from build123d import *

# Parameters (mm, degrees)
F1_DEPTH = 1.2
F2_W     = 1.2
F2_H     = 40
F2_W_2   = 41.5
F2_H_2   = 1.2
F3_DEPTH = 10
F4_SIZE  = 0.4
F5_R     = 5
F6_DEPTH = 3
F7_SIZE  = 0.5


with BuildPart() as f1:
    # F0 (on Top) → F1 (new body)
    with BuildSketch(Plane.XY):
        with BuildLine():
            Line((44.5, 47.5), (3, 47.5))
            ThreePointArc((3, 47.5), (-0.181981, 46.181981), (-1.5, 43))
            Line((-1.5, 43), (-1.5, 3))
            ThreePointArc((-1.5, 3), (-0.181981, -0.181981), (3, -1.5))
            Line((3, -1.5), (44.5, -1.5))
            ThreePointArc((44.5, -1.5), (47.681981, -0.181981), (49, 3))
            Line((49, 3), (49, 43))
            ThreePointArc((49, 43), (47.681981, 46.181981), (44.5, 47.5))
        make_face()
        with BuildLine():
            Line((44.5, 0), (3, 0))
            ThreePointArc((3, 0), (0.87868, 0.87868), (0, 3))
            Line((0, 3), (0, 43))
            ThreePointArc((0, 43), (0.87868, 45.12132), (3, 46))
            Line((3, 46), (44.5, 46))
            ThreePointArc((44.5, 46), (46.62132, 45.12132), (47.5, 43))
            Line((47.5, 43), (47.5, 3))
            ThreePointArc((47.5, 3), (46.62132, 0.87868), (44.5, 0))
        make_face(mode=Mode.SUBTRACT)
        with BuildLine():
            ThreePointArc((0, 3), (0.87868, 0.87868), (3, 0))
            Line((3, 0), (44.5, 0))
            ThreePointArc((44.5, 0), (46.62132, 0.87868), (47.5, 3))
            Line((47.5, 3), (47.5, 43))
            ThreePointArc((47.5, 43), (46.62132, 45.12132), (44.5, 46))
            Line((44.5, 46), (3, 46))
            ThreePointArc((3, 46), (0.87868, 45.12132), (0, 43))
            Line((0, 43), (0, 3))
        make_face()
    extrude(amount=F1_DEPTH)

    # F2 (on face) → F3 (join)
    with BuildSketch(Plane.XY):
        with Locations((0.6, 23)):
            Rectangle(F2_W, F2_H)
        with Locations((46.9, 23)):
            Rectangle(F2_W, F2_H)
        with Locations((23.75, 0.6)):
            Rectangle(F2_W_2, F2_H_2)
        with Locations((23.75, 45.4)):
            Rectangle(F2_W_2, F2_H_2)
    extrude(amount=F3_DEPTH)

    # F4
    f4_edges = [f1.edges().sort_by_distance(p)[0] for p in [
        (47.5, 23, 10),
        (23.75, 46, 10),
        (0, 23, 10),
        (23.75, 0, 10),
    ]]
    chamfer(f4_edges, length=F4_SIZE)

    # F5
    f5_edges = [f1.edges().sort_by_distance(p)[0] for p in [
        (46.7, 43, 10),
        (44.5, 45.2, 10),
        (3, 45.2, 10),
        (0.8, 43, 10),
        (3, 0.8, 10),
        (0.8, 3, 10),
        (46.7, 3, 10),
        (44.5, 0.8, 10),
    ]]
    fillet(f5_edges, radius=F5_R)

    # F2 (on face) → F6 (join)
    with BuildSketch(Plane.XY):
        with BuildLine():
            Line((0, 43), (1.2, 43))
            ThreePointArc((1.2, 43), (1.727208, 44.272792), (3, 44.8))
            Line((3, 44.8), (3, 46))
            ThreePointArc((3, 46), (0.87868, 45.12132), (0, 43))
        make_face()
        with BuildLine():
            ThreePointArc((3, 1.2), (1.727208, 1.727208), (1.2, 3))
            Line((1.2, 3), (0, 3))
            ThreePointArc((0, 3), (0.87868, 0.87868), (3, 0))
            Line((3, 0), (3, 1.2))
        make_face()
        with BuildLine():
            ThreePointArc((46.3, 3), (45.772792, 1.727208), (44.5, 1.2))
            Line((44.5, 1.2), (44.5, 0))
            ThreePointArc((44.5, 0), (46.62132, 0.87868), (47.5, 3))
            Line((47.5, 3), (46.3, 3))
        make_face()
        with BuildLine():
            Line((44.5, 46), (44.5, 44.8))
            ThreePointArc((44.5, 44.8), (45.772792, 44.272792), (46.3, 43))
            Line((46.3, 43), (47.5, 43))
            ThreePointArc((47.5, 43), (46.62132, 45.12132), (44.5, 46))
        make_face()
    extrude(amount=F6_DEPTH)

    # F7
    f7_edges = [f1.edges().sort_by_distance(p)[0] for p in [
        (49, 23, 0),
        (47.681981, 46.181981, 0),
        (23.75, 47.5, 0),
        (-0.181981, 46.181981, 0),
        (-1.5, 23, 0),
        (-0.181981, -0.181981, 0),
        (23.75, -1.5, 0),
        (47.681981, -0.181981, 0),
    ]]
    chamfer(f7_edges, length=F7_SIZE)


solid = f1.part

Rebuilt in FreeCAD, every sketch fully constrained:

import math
import FreeCAD as App
import Part
import Sketcher


def edges_at(feature, points):
    """Names of the edges that pass closest to the given points."""
    edges = feature.Shape.Edges
    near = lambda p: min(range(len(edges)), key=lambda i: edges[i].distToShape(Part.Vertex(*p))[0])
    return sorted({f"Edge{near(p) + 1}" for p in points})

doc = App.newDocument("Part")
body = doc.addObject("PartDesign::Body", "Body")

# Sketch on XY plane
sketch1 = body.newObject("Sketcher::SketchObject", "Sketch")
sketch1.AttachmentSupport = (doc.getObject("XY_Plane"), [""])
sketch1.MapMode = "FlatFace"
sketch1.addGeometry([
    Part.LineSegment(App.Vector(44.5, 47.5, 0), App.Vector(3, 47.5, 0)),  # 0
    Part.ArcOfCircle(Part.Circle(App.Vector(3, 43, 0), App.Vector(0, 0, 1), 4.5), math.radians(90), math.radians(180)),  # 1
    Part.LineSegment(App.Vector(-1.5, 43, 0), App.Vector(-1.5, 3, 0)),  # 2
    Part.ArcOfCircle(Part.Circle(App.Vector(3, 3, 0), App.Vector(0, 0, 1), 4.5), math.radians(180), math.radians(270)),  # 3
    Part.LineSegment(App.Vector(3, -1.5, 0), App.Vector(44.5, -1.5, 0)),  # 4
    Part.ArcOfCircle(Part.Circle(App.Vector(44.5, 3, 0), App.Vector(0, 0, 1), 4.5), math.radians(-90), math.radians(0)),  # 5
    Part.LineSegment(App.Vector(49, 3, 0), App.Vector(49, 43, 0)),  # 6
    Part.ArcOfCircle(Part.Circle(App.Vector(44.5, 43, 0), App.Vector(0, 0, 1), 4.5), math.radians(0), math.radians(90)),  # 7
], False)
sketch1.addConstraint([
    Sketcher.Constraint("Tangent", 0, 2, 1, 1),
    Sketcher.Constraint("Tangent", 1, 2, 2, 1),
    Sketcher.Constraint("Tangent", 2, 2, 3, 1),
    Sketcher.Constraint("Tangent", 3, 2, 4, 1),
    Sketcher.Constraint("Tangent", 4, 2, 5, 1),
    Sketcher.Constraint("Tangent", 5, 2, 6, 1),
    Sketcher.Constraint("Tangent", 6, 2, 7, 1),
    Sketcher.Constraint("Tangent", 7, 2, 0, 1),
    Sketcher.Constraint("Horizontal", 0),
    Sketcher.Constraint("Vertical", 2),
    Sketcher.Constraint("Horizontal", 4),
    Sketcher.Constraint("Vertical", 6),
    Sketcher.Constraint("Equal", 1, 3),
    Sketcher.Constraint("Equal", 3, 5),
    Sketcher.Constraint("Equal", 5, 7),
    Sketcher.Constraint("Radius", 1, 4.499998),
    Sketcher.Constraint("DistanceY", 2, 2, 2, 1, 40.0),
    Sketcher.Constraint("DistanceX", 0, 2, 0, 1, 41.5),
    Sketcher.Constraint("DistanceX", -1, 1, 1, 3, 2.999998),
    Sketcher.Constraint("DistanceY", -1, 1, 1, 3, 43.000002),
])
pad1 = body.newObject("PartDesign::Pad", "Pad")
pad1.Profile = sketch1
pad1.Length = 1.2

# Sketch on XY plane
sketch2 = body.newObject("Sketcher::SketchObject", "Sketch001")
sketch2.AttachmentSupport = (doc.getObject("XY_Plane"), [""])
sketch2.MapMode = "FlatFace"
sketch2.addGeometry([
    Part.LineSegment(App.Vector(0, 43, 0), App.Vector(0, 3, 0)),  # 0
    Part.LineSegment(App.Vector(0, 3, 0), App.Vector(1.2, 3, 0)),  # 1
    Part.LineSegment(App.Vector(1.2, 3, 0), App.Vector(1.2, 43, 0)),  # 2
    Part.LineSegment(App.Vector(1.2, 43, 0), App.Vector(0, 43, 0)),  # 3
    Part.LineSegment(App.Vector(46.3, 43, 0), App.Vector(46.3, 3, 0)),  # 4
    Part.LineSegment(App.Vector(46.3, 3, 0), App.Vector(47.5, 3, 0)),  # 5
    Part.LineSegment(App.Vector(47.5, 3, 0), App.Vector(47.5, 43, 0)),  # 6
    Part.LineSegment(App.Vector(47.5, 43, 0), App.Vector(46.3, 43, 0)),  # 7
    Part.LineSegment(App.Vector(3, 1.2, 0), App.Vector(3, 0, 0)),  # 8
    Part.LineSegment(App.Vector(3, 0, 0), App.Vector(44.5, 0, 0)),  # 9
    Part.LineSegment(App.Vector(44.5, 0, 0), App.Vector(44.5, 1.2, 0)),  # 10
    Part.LineSegment(App.Vector(44.5, 1.2, 0), App.Vector(3, 1.2, 0)),  # 11
    Part.LineSegment(App.Vector(3, 46, 0), App.Vector(3, 44.8, 0)),  # 12
    Part.LineSegment(App.Vector(3, 44.8, 0), App.Vector(44.5, 44.8, 0)),  # 13
    Part.LineSegment(App.Vector(44.5, 44.8, 0), App.Vector(44.5, 46, 0)),  # 14
    Part.LineSegment(App.Vector(44.5, 46, 0), App.Vector(3, 46, 0)),  # 15
], False)
sketch2.addConstraint([
    Sketcher.Constraint("Coincident", 0, 2, 1, 1),
    Sketcher.Constraint("Coincident", 1, 2, 2, 1),
    Sketcher.Constraint("Coincident", 2, 2, 3, 1),
    Sketcher.Constraint("Coincident", 3, 2, 0, 1),
    Sketcher.Constraint("Coincident", 4, 2, 5, 1),
    Sketcher.Constraint("Coincident", 5, 2, 6, 1),
    Sketcher.Constraint("Coincident", 6, 2, 7, 1),
    Sketcher.Constraint("Coincident", 7, 2, 4, 1),
    Sketcher.Constraint("Coincident", 8, 2, 9, 1),
    Sketcher.Constraint("Coincident", 9, 2, 10, 1),
    Sketcher.Constraint("Coincident", 10, 2, 11, 1),
    Sketcher.Constraint("Coincident", 11, 2, 8, 1),
    Sketcher.Constraint("Coincident", 12, 2, 13, 1),
    Sketcher.Constraint("Coincident", 13, 2, 14, 1),
    Sketcher.Constraint("Coincident", 14, 2, 15, 1),
    Sketcher.Constraint("Coincident", 15, 2, 12, 1),
    Sketcher.Constraint("Vertical", 0),
    Sketcher.Constraint("Horizontal", 1),
    Sketcher.Constraint("Vertical", 2),
    Sketcher.Constraint("Horizontal", 3),
    Sketcher.Constraint("Vertical", 4),
    Sketcher.Constraint("Horizontal", 5),
    Sketcher.Constraint("Vertical", 6),
    Sketcher.Constraint("Horizontal", 7),
    Sketcher.Constraint("Vertical", 8),
    Sketcher.Constraint("Horizontal", 9),
    Sketcher.Constraint("Vertical", 10),
    Sketcher.Constraint("Horizontal", 11),
    Sketcher.Constraint("Vertical", 12),
    Sketcher.Constraint("Horizontal", 13),
    Sketcher.Constraint("Vertical", 14),
    Sketcher.Constraint("Horizontal", 15),
    Sketcher.Constraint("PointOnObject", 0, 2, -2),
    Sketcher.Constraint("PointOnObject", 8, 2, -1),
    Sketcher.Constraint("Horizontal", 1, 2, 4, 2),
    Sketcher.Constraint("Horizontal", 3, 2, 6, 2),
    Sketcher.Constraint("Vertical", 11, 2, 12, 2),
    Sketcher.Constraint("Vertical", 10, 2, 13, 2),
    Sketcher.Constraint("Equal", 3, 5),
    Sketcher.Constraint("Equal", 7, 8),
    Sketcher.Constraint("Equal", 10, 12),
    Sketcher.Constraint("DistanceY", 0, 2, 0, 1, 40.0),
    Sketcher.Constraint("DistanceX", 1, 1, 1, 2, 1.2),
    Sketcher.Constraint("DistanceX", 9, 1, 9, 2, 41.5),
    Sketcher.Constraint("DistanceY", -1, 1, 0, 2, 3.0),
    Sketcher.Constraint("DistanceX", -1, 1, 8, 2, 3.0),
    Sketcher.Constraint("DistanceY", -1, 1, 14, 2, 46.0),
    Sketcher.Constraint("DistanceX", 9, 2, 5, 2, 3.0),
])
pad2 = body.newObject("PartDesign::Pad", "Pad001")
pad2.Profile = sketch2
pad2.Length = 10
doc.recompute()

chamfer = body.newObject("PartDesign::Chamfer", "Chamfer")
chamfer.Base = (pad2, edges_at(pad2, [
    (47.5, 23, 10),
    (23.75, 46, 10),
    (0, 23, 10),
    (23.75, 0, 10),
]))
chamfer.Size = 0.4
doc.recompute()

fillet = body.newObject("PartDesign::Fillet", "Fillet")
fillet.Base = (chamfer, edges_at(chamfer, [
    (46.7, 43, 10),
    (44.5, 45.2, 10),
    (3, 45.2, 10),
    (0.8, 43, 10),
    (3, 0.8, 10),
    (0.8, 3, 10),
    (46.7, 3, 10),
    (44.5, 0.8, 10),
]))
fillet.Radius = 5

# Sketch on XY plane
sketch3 = body.newObject("Sketcher::SketchObject", "Sketch002")
sketch3.AttachmentSupport = (doc.getObject("XY_Plane"), [""])
sketch3.MapMode = "FlatFace"
sketch3.addGeometry([
    Part.LineSegment(App.Vector(0, 43, 0), App.Vector(1.2, 43, 0)),  # 0
    Part.ArcOfCircle(Part.Circle(App.Vector(3, 43, 0), App.Vector(0, 0, 1), 1.8), math.radians(90), math.radians(180)),  # 1
    Part.LineSegment(App.Vector(3, 44.8, 0), App.Vector(3, 46, 0)),  # 2
    Part.ArcOfCircle(Part.Circle(App.Vector(3, 43, 0), App.Vector(0, 0, 1), 3), math.radians(90), math.radians(180)),  # 3
    Part.ArcOfCircle(Part.Circle(App.Vector(3, 3, 0), App.Vector(0, 0, 1), 1.8), math.radians(-180), math.radians(-90)),  # 4
    Part.LineSegment(App.Vector(1.2, 3, 0), App.Vector(0, 3, 0)),  # 5
    Part.ArcOfCircle(Part.Circle(App.Vector(3, 3, 0), App.Vector(0, 0, 1), 3), math.radians(-180), math.radians(-90)),  # 6
    Part.LineSegment(App.Vector(3, 0, 0), App.Vector(3, 1.2, 0)),  # 7
    Part.ArcOfCircle(Part.Circle(App.Vector(44.5, 3, 0), App.Vector(0, 0, 1), 1.8), math.radians(-90), math.radians(0)),  # 8
    Part.LineSegment(App.Vector(44.5, 1.2, 0), App.Vector(44.5, 0, 0)),  # 9
    Part.ArcOfCircle(Part.Circle(App.Vector(44.5, 3, 0), App.Vector(0, 0, 1), 3), math.radians(-90), math.radians(0)),  # 10
    Part.LineSegment(App.Vector(47.5, 3, 0), App.Vector(46.3, 3, 0)),  # 11
    Part.LineSegment(App.Vector(44.5, 46, 0), App.Vector(44.5, 44.8, 0)),  # 12
    Part.ArcOfCircle(Part.Circle(App.Vector(44.5, 43, 0), App.Vector(0, 0, 1), 1.8), math.radians(0), math.radians(90)),  # 13
    Part.LineSegment(App.Vector(46.3, 43, 0), App.Vector(47.5, 43, 0)),  # 14
    Part.ArcOfCircle(Part.Circle(App.Vector(44.5, 43, 0), App.Vector(0, 0, 1), 3), math.radians(0), math.radians(90)),  # 15
], False)
sketch3.addConstraint([
    Sketcher.Constraint("Coincident", 0, 2, 1, 2),
    Sketcher.Constraint("Coincident", 1, 1, 2, 1),
    Sketcher.Constraint("Coincident", 2, 2, 3, 1),
    Sketcher.Constraint("Coincident", 3, 2, 0, 1),
    Sketcher.Constraint("Coincident", 4, 1, 5, 1),
    Sketcher.Constraint("Coincident", 5, 2, 6, 1),
    Sketcher.Constraint("Coincident", 6, 2, 7, 1),
    Sketcher.Constraint("Coincident", 7, 2, 4, 2),
    Sketcher.Constraint("Coincident", 8, 1, 9, 1),
    Sketcher.Constraint("Coincident", 9, 2, 10, 1),
    Sketcher.Constraint("Coincident", 10, 2, 11, 1),
    Sketcher.Constraint("Coincident", 11, 2, 8, 2),
    Sketcher.Constraint("Coincident", 12, 2, 13, 2),
    Sketcher.Constraint("Coincident", 13, 1, 14, 1),
    Sketcher.Constraint("Coincident", 14, 2, 15, 1),
    Sketcher.Constraint("Coincident", 15, 2, 12, 1),
    Sketcher.Constraint("Horizontal", 0),
    Sketcher.Constraint("Vertical", 2),
    Sketcher.Constraint("Horizontal", 5),
    Sketcher.Constraint("Vertical", 7),
    Sketcher.Constraint("Vertical", 9),
    Sketcher.Constraint("Horizontal", 11),
    Sketcher.Constraint("Vertical", 12),
    Sketcher.Constraint("Horizontal", 14),
    Sketcher.Constraint("Coincident", 3, 3, 1, 3),
    Sketcher.Constraint("Coincident", 6, 3, 4, 3),
    Sketcher.Constraint("Coincident", 10, 3, 8, 3),
    Sketcher.Constraint("Coincident", 15, 3, 13, 3),
    Sketcher.Constraint("Equal", 1, 4),
    Sketcher.Constraint("Equal", 3, 6),
    Sketcher.Constraint("Equal", 4, 8),
    Sketcher.Constraint("Equal", 6, 10),
    Sketcher.Constraint("Equal", 8, 13),
    Sketcher.Constraint("Equal", 10, 15),
    Sketcher.Constraint("PointOnObject", 3, 2, -2),
    Sketcher.Constraint("PointOnObject", 5, 2, -2),
    Sketcher.Constraint("PointOnObject", 6, 2, -1),
    Sketcher.Constraint("PointOnObject", 9, 2, -1),
    Sketcher.Constraint("Horizontal", 3, 3, 13, 3),
    Sketcher.Constraint("Horizontal", 15, 3, 0, 2),
    Sketcher.Constraint("Horizontal", 10, 3, 4, 1),
    Sketcher.Constraint("Horizontal", 5, 2, 10, 2),
    Sketcher.Constraint("Horizontal", 3, 2, 13, 1),
    Sketcher.Constraint("Vertical", 10, 3, 13, 3),
    Sketcher.Constraint("Vertical", 6, 3, 1, 1),
    Sketcher.Constraint("Vertical", 2, 2, 6, 2),
    Sketcher.Constraint("Vertical", 15, 3, 8, 1),
    Sketcher.Constraint("Vertical", 9, 2, 12, 2),
    Sketcher.Constraint("Radius", 3, 3.000001),
    Sketcher.Constraint("Radius", 1, 1.800001),
    Sketcher.Constraint("DistanceY", -1, 1, 1, 3, 42.999999),
    Sketcher.Constraint("DistanceX", -1, 1, 8, 3, 44.499999),
])
pad3 = body.newObject("PartDesign::Pad", "Pad002")
pad3.Profile = sketch3
pad3.Length = 3
doc.recompute()

chamfer2 = body.newObject("PartDesign::Chamfer", "Chamfer001")
chamfer2.Base = (pad3, edges_at(pad3, [
    (49, 23, 0),
    (47.682, 46.182, 0),
    (23.75, 47.5, 0),
    (-0.182, 46.182, 0),
    (-1.5, 23, 0),
    (-0.182, -0.182, 0),
    (23.75, -1.5, 0),
    (47.682, -0.182, 0),
]))
chamfer2.Size = 0.5

doc.recompute()
